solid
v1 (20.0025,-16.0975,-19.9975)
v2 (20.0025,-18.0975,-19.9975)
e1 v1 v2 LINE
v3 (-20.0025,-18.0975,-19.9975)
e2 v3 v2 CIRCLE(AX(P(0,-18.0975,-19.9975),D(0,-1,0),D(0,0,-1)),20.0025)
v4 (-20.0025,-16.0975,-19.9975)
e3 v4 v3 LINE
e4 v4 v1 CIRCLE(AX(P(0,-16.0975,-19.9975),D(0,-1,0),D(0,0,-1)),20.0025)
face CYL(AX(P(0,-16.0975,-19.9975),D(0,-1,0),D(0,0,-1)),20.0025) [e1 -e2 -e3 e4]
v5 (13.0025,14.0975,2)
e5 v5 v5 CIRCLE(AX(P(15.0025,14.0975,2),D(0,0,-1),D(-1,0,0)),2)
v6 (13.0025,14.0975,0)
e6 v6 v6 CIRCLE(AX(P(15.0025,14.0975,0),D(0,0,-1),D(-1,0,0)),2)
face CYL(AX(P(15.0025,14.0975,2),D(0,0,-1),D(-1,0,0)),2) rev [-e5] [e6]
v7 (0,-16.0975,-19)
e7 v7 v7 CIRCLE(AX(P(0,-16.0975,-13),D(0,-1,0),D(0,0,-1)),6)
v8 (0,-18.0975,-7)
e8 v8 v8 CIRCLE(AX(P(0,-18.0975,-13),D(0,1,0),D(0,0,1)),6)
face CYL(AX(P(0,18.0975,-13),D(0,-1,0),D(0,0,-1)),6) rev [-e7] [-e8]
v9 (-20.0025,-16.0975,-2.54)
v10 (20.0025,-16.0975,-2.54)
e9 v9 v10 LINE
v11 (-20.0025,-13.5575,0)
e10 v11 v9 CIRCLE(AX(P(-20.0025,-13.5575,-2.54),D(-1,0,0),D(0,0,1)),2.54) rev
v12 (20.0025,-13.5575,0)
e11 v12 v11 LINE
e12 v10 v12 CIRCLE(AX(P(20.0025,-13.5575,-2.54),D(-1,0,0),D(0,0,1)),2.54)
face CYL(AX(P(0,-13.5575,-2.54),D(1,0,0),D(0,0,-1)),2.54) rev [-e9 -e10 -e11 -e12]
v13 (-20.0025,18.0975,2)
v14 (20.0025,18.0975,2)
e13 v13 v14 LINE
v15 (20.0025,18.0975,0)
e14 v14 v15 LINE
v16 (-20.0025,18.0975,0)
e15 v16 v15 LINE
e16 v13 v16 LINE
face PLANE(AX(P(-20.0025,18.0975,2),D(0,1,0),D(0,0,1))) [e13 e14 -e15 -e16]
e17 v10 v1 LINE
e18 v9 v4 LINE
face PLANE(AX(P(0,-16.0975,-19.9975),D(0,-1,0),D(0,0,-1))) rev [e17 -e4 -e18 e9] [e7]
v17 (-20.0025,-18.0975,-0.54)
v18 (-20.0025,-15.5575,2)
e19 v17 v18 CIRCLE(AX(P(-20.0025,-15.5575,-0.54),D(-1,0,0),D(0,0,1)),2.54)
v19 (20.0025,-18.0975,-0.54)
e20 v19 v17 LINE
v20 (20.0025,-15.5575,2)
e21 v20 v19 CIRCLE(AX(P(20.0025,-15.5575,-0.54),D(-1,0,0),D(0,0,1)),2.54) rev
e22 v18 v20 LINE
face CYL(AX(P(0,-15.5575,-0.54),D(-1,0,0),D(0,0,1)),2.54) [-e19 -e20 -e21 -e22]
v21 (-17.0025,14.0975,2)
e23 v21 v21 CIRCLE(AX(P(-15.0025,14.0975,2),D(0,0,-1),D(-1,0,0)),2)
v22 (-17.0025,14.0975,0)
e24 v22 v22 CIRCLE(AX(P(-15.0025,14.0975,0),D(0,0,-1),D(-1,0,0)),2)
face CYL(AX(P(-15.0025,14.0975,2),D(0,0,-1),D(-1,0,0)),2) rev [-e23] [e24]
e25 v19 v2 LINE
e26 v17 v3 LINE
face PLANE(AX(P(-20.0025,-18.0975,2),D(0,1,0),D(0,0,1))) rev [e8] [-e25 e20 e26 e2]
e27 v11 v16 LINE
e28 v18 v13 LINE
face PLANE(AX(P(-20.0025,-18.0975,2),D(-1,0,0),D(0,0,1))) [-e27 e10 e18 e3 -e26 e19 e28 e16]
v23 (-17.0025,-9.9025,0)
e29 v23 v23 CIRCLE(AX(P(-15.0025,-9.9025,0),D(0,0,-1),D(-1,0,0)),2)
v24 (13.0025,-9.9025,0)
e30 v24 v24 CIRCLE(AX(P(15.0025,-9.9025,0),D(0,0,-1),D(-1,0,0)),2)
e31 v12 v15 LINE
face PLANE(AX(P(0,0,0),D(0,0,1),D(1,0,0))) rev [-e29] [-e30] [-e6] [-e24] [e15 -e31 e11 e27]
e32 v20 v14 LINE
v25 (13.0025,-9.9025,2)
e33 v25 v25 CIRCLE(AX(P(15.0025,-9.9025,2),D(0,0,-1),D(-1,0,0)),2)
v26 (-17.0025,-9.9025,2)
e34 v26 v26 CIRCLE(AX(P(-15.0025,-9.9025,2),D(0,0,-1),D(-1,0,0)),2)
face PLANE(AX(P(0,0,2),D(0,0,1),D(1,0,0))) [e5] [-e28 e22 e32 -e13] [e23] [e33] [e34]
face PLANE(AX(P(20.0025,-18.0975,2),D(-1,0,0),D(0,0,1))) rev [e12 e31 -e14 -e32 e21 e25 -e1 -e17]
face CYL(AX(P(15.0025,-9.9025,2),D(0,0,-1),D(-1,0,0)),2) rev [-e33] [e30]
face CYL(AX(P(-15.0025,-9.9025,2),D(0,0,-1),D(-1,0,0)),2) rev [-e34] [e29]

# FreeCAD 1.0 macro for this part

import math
import FreeCAD as App
import Part
import Sketcher

V = App.Vector


def edges_at(feature, points):
    """Names of the edges that pass closest to the given points."""
    edges = feature.Shape.Edges
    near = lambda p: min(range(len(edges)), key=lambda i: edges[i].distToShape(Part.Vertex(*p))[0])
    return sorted({f"Edge{near(p) + 1}" for p in points})

doc = App.newDocument("Part")
body = doc.addObject("PartDesign::Body", "Body")

sketch1 = body.newObject("Sketcher::SketchObject", "Sketch")
sketch1.AttachmentSupport = (doc.getObject("XY_Plane"), [""])
sketch1.MapMode = "FlatFace"
sketch1.addGeometry([
    Part.LineSegment(V(-20, 18, 0), V(-20, -18, 0)),
    Part.LineSegment(V(-20, -18, 0), V(20, -18, 0)),
    Part.LineSegment(V(20, -18, 0), V(20, 18, 0)),
    Part.LineSegment(V(20, 18, 0), V(-20, 18, 0)),
], False)
sketch1.addConstraint([
    Sketcher.Constraint("Coincident", 0, 2, 1, 1),
    Sketcher.Constraint("Coincident", 1, 2, 2, 1),
    Sketcher.Constraint("Coincident", 2, 2, 3, 1),
    Sketcher.Constraint("Coincident", 3, 2, 0, 1),
    Sketcher.Constraint("Vertical", 0),
    Sketcher.Constraint("Horizontal", 1),
    Sketcher.Constraint("Vertical", 2),
    Sketcher.Constraint("Horizontal", 3),
    Sketcher.Constraint("Symmetric", 0, 2, 2, 2, -1, 1),
    Sketcher.Constraint("DistanceX", 1, 1, 1, 2, 40.005),
    Sketcher.Constraint("DistanceY", 0, 2, 0, 1, 36.195),
])
pad1 = body.newObject("PartDesign::Pad", "Pad")
pad1.Profile = sketch1
pad1.Length = 2

sketch2 = body.newObject("Sketcher::SketchObject", "Sketch001")
sketch2.AttachmentSupport = (doc.getObject("XZ_Plane"), [""])
sketch2.MapMode = "FlatFace"
sketch2.AttachmentOffset = App.Placement(V(0, 0, 18.0975), App.Rotation())
sketch2.addGeometry([
    Part.LineSegment(V(20, 0, 0), V(-20, 0, 0)),
    Part.LineSegment(V(-20, 0, 0), V(-20, -20, 0)),
    Part.ArcOfCircle(Part.Circle(V(0, -20, 0), V(0, 0, 1), 20), math.radians(180), math.radians(360)),
    Part.LineSegment(V(20, -20, 0), V(20, 0, 0)),
], False)
sketch2.addConstraint([
    Sketcher.Constraint("Coincident", 0, 2, 1, 1),
    Sketcher.Constraint("Tangent", 1, 2, 2, 1),
    Sketcher.Constraint("Tangent", 2, 2, 3, 1),
    Sketcher.Constraint("Coincident", 3, 2, 0, 1),
    Sketcher.Constraint("Horizontal", 0),
    Sketcher.Constraint("Vertical", 1),
    Sketcher.Constraint("Vertical", 3),
    Sketcher.Constraint("Symmetric", 0, 2, 3, 2, -1, 1),
    Sketcher.Constraint("Radius", 2, 20.0025),
    Sketcher.Constraint("DistanceY", 1, 2, 1, 1, 19.9975),
])
pad2 = body.newObject("PartDesign::Pad", "Pad001")
pad2.Profile = sketch2
pad2.Length = 2
pad2.Reversed = True
doc.recompute()

fillet = body.newObject("PartDesign::Fillet", "Fillet")
fillet.Base = (pad2, edges_at(pad2, [(0, -16.098, 0), (0, -18.098, 2)]))
fillet.Radius = 2.54

sketch3 = body.newObject("Sketcher::SketchObject", "Sketch002")
sketch3.AttachmentSupport = (doc.getObject("XY_Plane"), [""])
sketch3.MapMode = "FlatFace"
sketch3.addGeometry([
    Part.Circle(V(15, 14.1, 0), V(0, 0, 1), 2),
    Part.Circle(V(-15, 14.1, 0), V(0, 0, 1), 2),
    Part.Circle(V(-15, -9.9, 0), V(0, 0, 1), 2),
    Part.Circle(V(15, -9.9, 0), V(0, 0, 1), 2),
], False)
sketch3.addConstraint([
    Sketcher.Constraint("Equal", 0, 1),
    Sketcher.Constraint("Equal", 1, 2),
    Sketcher.Constraint("Equal", 2, 3),
    Sketcher.Constraint("Symmetric", 0, 3, 1, 3, -2),
    Sketcher.Constraint("Symmetric", 2, 3, 3, 3, -2),
    Sketcher.Constraint("Vertical", 1, 3, 2, 3),
    Sketcher.Constraint("Diameter", 0, 4.0),
    Sketcher.Constraint("DistanceY", 2, 3, 1, 3, 24.0),
    Sketcher.Constraint("DistanceX", 1, 3, 0, 3, 30.005),
    Sketcher.Constraint("DistanceY", -1, 1, 0, 3, 14.0975),
])
pocket1 = body.newObject("PartDesign::Pocket", "Pocket")
pocket1.Profile = sketch3
pocket1.Type = "ThroughAll"
pocket1.Reversed = True

sketch4 = body.newObject("Sketcher::SketchObject", "Sketch003")
sketch4.AttachmentSupport = (doc.getObject("XZ_Plane"), [""])
sketch4.MapMode = "FlatFace"
sketch4.AttachmentOffset = App.Placement(V(0, 0, 18.0975), App.Rotation())
sketch4.addGeometry(Part.Circle(V(0, -13, 0), V(0, 0, 1), 6), False)
sketch4.addConstraint([
    Sketcher.Constraint("PointOnObject", 0, 3, -2),
    Sketcher.Constraint("Diameter", 0, 12.0),
    Sketcher.Constraint("DistanceY", 0, 3, -1, 1, 13.0),
])
pocket2 = body.newObject("PartDesign::Pocket", "Pocket001")
pocket2.Profile = sketch4
pocket2.Type = "ThroughAll"
pocket2.Midplane = True

doc.recompute()
